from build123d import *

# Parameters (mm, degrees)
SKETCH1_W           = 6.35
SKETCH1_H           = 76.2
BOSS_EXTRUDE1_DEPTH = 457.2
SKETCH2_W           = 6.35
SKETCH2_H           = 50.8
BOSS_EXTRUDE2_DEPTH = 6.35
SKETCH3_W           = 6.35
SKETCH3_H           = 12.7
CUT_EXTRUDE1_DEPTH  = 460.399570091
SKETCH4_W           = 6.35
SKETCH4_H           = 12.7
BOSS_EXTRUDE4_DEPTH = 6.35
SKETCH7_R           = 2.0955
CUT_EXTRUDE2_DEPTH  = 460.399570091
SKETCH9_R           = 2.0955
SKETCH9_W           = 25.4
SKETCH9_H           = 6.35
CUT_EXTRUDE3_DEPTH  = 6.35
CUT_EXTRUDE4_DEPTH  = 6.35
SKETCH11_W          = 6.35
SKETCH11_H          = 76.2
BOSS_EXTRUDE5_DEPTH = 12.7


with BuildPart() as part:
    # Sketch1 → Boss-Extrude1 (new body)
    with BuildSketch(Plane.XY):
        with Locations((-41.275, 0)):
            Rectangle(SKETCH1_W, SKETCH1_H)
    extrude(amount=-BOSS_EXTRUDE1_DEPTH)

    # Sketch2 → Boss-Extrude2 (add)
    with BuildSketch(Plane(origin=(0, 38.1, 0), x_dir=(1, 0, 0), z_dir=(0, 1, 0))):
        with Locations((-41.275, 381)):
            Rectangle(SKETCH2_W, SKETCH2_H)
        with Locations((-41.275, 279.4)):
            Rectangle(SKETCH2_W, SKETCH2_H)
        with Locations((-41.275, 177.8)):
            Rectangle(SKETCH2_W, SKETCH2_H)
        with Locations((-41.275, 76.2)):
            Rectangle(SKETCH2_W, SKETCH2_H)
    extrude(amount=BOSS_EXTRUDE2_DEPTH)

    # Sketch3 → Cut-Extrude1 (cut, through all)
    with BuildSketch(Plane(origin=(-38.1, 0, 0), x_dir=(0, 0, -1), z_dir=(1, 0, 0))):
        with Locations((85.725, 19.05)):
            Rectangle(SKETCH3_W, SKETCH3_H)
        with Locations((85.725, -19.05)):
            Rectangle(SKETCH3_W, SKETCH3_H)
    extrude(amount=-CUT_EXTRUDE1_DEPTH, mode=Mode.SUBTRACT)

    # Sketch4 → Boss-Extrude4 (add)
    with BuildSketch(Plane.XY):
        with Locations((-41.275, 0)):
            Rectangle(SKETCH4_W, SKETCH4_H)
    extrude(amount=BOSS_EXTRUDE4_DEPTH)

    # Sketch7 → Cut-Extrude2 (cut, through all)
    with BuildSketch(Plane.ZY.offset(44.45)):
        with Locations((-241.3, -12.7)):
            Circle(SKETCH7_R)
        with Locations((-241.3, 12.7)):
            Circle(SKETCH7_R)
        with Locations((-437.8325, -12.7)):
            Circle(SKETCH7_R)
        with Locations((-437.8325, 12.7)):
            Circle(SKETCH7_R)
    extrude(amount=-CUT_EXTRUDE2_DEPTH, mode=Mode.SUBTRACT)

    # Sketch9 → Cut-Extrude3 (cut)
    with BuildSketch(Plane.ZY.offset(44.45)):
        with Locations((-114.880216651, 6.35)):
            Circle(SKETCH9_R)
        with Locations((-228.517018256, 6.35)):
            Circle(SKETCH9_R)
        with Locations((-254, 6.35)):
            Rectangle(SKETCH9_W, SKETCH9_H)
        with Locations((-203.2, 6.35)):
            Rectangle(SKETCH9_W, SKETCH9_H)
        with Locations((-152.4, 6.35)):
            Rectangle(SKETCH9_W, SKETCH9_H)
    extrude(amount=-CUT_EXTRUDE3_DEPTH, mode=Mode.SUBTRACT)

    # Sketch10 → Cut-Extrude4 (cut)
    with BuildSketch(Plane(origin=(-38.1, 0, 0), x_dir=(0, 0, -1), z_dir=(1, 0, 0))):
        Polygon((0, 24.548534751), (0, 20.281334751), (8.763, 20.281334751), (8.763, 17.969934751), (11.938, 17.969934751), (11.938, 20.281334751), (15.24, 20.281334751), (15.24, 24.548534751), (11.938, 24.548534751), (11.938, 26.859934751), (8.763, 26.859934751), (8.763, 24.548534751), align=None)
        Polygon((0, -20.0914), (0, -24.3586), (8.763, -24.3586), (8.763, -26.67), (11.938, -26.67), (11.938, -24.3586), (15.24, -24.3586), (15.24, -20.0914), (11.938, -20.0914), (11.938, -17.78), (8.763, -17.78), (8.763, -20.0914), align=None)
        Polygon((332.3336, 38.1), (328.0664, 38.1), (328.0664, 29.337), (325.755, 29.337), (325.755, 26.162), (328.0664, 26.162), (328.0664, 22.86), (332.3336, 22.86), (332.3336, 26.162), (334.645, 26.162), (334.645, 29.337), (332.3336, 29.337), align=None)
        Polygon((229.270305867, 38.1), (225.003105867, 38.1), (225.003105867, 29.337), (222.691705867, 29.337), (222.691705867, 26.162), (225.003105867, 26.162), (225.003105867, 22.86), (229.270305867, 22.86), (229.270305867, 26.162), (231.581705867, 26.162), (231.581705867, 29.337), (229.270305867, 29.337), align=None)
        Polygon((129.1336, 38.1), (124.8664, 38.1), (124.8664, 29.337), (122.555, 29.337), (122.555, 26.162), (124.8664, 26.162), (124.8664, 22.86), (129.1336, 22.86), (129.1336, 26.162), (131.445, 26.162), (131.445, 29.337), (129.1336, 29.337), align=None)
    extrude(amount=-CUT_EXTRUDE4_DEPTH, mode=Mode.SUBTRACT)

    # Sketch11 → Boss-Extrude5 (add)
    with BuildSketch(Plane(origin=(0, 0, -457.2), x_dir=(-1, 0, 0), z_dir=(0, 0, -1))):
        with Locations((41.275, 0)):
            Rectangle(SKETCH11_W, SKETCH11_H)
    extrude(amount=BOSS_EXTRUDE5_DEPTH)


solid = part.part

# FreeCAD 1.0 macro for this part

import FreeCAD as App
import Part
import Sketcher
from FreeCAD import Vector
Q = App.Units.Quantity

doc = App.newDocument("Part")
params = doc.addObject("Spreadsheet::Sheet", "Params")
for row, (alias, value) in enumerate([
    ("sketch1_height", "3 in"),
    ("sketch1_width", "0.25 in"),
    ("pad1_length", "18 in"),
    ("sketch2_height", "2 in"),
    ("sketch2_width", "0.25 in"),
    ("pad2_length", "0.25 in"),
    ("sketch3_width", "0.5 in"),
    ("sketch3_height", "0.25 in"),
    ("sketch4_height", "0.5 in"),
    ("sketch4_width", "0.25 in"),
    ("pad3_length", "0.25 in"),
    ("sketch5_diameter", "0.165 in"),
    ("sketch6_height", "1 in"),
    ("sketch6_diameter", "0.165 in"),
    ("sketch6_width", "0.25 in"),
    ("pocket3_length", "0.25 in"),
    ("sketch7_width", "0.13 in"),
    ("sketch7_width2", "0.168 in"),
    ("sketch7_width3", "0.091 in"),
    ("sketch7_width4", "0.345 in"),
    ("pocket4_length", "0.25 in"),
    ("sketch8_height", "3 in"),
    ("sketch8_width", "0.25 in"),
    ("pad4_length", "0.5 in"),
], start=1):
    params.set(f"A{row}", alias)
    params.set(f"B{row}", "=" + value)
    params.setAlias(f"B{row}", alias)

body = doc.addObject("PartDesign::Body", "Body")

sketch1 = doc.addObject("Sketcher::SketchObject", "Sketch")
body.addObject(sketch1)
sketch1.AttachmentSupport = (doc.XY_Plane, [""])
sketch1.MapMode = "FlatFace"
sketch1.addGeometry([
    Part.LineSegment(Vector(-44, 38, 0), Vector(-44, -38, 0)),
    Part.LineSegment(Vector(-44, -38, 0), Vector(-38, -38, 0)),
    Part.LineSegment(Vector(-38, -38, 0), Vector(-38, 38, 0)),
    Part.LineSegment(Vector(-38, 38, 0), Vector(-44, 38, 0)),
], False)
sketch1.addConstraint([
    Sketcher.Constraint("Coincident", 0, 2, 1, 1),
    Sketcher.Constraint("Coincident", 1, 2, 2, 1),
    Sketcher.Constraint("Coincident", 2, 2, 3, 1),
    Sketcher.Constraint("Coincident", 3, 2, 0, 1),
    Sketcher.Constraint("Vertical", 0),
    Sketcher.Constraint("Horizontal", 1),
    Sketcher.Constraint("Vertical", 2),
    Sketcher.Constraint("Horizontal", 3),
    Sketcher.Constraint("DistanceY", 0, 2, 0, 1, Q("3 in")),
    Sketcher.Constraint("DistanceX", 1, 1, 1, 2, Q("0.25 in")),
    Sketcher.Constraint("DistanceY", 0, 2, -1, 1, Q("1.5 in")),
    Sketcher.Constraint("DistanceX", 1, 2, -1, 1, Q("1.5 in")),
])
sketch1.setExpression("Constraints[8]", "Params.sketch1_height")
sketch1.setExpression("Constraints[9]", "Params.sketch1_width")
pad1 = doc.addObject("PartDesign::Pad", "Pad")
body.addObject(pad1)
pad1.Profile = sketch1
pad1.setExpression("Length", "Params.pad1_length")
pad1.Reversed = True

sketch2 = doc.addObject("Sketcher::SketchObject", "Sketch001")
body.addObject(sketch2)
sketch2.AttachmentSupport = (doc.XZ_Plane, [""])
sketch2.MapMode = "FlatFace"
sketch2.AttachmentOffset = App.Placement(Vector(0, 0, -1.5 * 25.4), App.Rotation())
sketch2.addGeometry([
    Part.LineSegment(Vector(-44, -406, 0), Vector(-44, -356, 0)),
    Part.LineSegment(Vector(-44, -356, 0), Vector(-38, -356, 0)),
    Part.LineSegment(Vector(-38, -356, 0), Vector(-38, -406, 0)),
    Part.LineSegment(Vector(-38, -406, 0), Vector(-44, -406, 0)),
    Part.LineSegment(Vector(-44, -305, 0), Vector(-44, -254, 0)),
    Part.LineSegment(Vector(-44, -254, 0), Vector(-38, -254, 0)),
    Part.LineSegment(Vector(-38, -254, 0), Vector(-38, -305, 0)),
    Part.LineSegment(Vector(-38, -305, 0), Vector(-44, -305, 0)),
    Part.LineSegment(Vector(-44, -203, 0), Vector(-44, -152, 0)),
    Part.LineSegment(Vector(-44, -152, 0), Vector(-38, -152, 0)),
    Part.LineSegment(Vector(-38, -152, 0), Vector(-38, -203, 0)),
    Part.LineSegment(Vector(-38, -203, 0), Vector(-44, -203, 0)),
    Part.LineSegment(Vector(-44, -102, 0), Vector(-44, -51, 0)),
    Part.LineSegment(Vector(-44, -51, 0), Vector(-38, -51, 0)),
    Part.LineSegment(Vector(-38, -51, 0), Vector(-38, -102, 0)),
    Part.LineSegment(Vector(-38, -102, 0), Vector(-44, -102, 0)),
], False)
sketch2.addConstraint([
    Sketcher.Constraint("Coincident", 0, 2, 1, 1),
    Sketcher.Constraint("Coincident", 1, 2, 2, 1),
    Sketcher.Constraint("Coincident", 2, 2, 3, 1),
    Sketcher.Constraint("Coincident", 3, 2, 0, 1),
    Sketcher.Constraint("Coincident", 4, 2, 5, 1),
    Sketcher.Constraint("Coincident", 5, 2, 6, 1),
    Sketcher.Constraint("Coincident", 6, 2, 7, 1),
    Sketcher.Constraint("Coincident", 7, 2, 4, 1),
    Sketcher.Constraint("Coincident", 8, 2, 9, 1),
    Sketcher.Constraint("Coincident", 9, 2, 10, 1),
    Sketcher.Constraint("Coincident", 10, 2, 11, 1),
    Sketcher.Constraint("Coincident", 11, 2, 8, 1),
    Sketcher.Constraint("Coincident", 12, 2, 13, 1),
    Sketcher.Constraint("Coincident", 13, 2, 14, 1),
    Sketcher.Constraint("Coincident", 14, 2, 15, 1),
    Sketcher.Constraint("Coincident", 15, 2, 12, 1),
    Sketcher.Constraint("Vertical", 0),
    Sketcher.Constraint("Horizontal", 1),
    Sketcher.Constraint("Vertical", 2),
    Sketcher.Constraint("Horizontal", 3),
    Sketcher.Constraint("Vertical", 4),
    Sketcher.Constraint("Horizontal", 5),
    Sketcher.Constraint("Vertical", 6),
    Sketcher.Constraint("Horizontal", 7),
    Sketcher.Constraint("Vertical", 8),
    Sketcher.Constraint("Horizontal", 9),
    Sketcher.Constraint("Vertical", 10),
    Sketcher.Constraint("Horizontal", 11),
    Sketcher.Constraint("Vertical", 12),
    Sketcher.Constraint("Horizontal", 13),
    Sketcher.Constraint("Vertical", 14),
    Sketcher.Constraint("Horizontal", 15),
    Sketcher.Constraint("Vertical", 3, 2, 4, 2),
    Sketcher.Constraint("Vertical", 2, 2, 5, 2),
    Sketcher.Constraint("Vertical", 7, 2, 8, 2),
    Sketcher.Constraint("Vertical", 6, 2, 9, 2),
    Sketcher.Constraint("Vertical", 11, 2, 12, 2),
    Sketcher.Constraint("Vertical", 10, 2, 13, 2),
    Sketcher.Constraint("Equal", 2, 4),
    Sketcher.Constraint("Equal", 6, 8),
    Sketcher.Constraint("Equal", 10, 12),
    Sketcher.Constraint("DistanceY", 0, 1, 0, 2, Q("2 in")),
    Sketcher.Constraint("DistanceY", 0, 2, -1, 1, Q("14 in")),
    Sketcher.Constraint("DistanceY", 4, 2, -1, 1, Q("10 in")),
    Sketcher.Constraint("DistanceY", 8, 2, -1, 1, Q("6 in")),
    Sketcher.Constraint("DistanceY", 12, 2, -1, 1, Q("2 in")),
    Sketcher.Constraint("DistanceX", 1, 1, 1, 2, Q("0.25 in")),
    Sketcher.Constraint("DistanceX", 1, 2, -1, 1, Q("1.5 in")),
])
sketch2.setExpression("Constraints[41]", "Params.sketch2_height")
sketch2.setExpression("Constraints[46]", "Params.sketch2_width")
pad2 = doc.addObject("PartDesign::Pad", "Pad001")
body.addObject(pad2)
pad2.Profile = sketch2
pad2.setExpression("Length", "Params.pad2_length")
pad2.Reversed = True

sketch3 = doc.addObject("Sketcher::SketchObject", "Sketch002")
body.addObject(sketch3)
sketch3.AttachmentSupport = (doc.YZ_Plane, [""])
sketch3.MapMode = "FlatFace"
sketch3.AttachmentOffset = App.Placement(Vector(0, 0, -1.5 * 25.4), App.Rotation())
sketch3.addGeometry([
    Part.LineSegment(Vector(25, -83, 0), Vector(13, -83, 0)),
    Part.LineSegment(Vector(13, -83, 0), Vector(13, -89, 0)),
    Part.LineSegment(Vector(13, -89, 0), Vector(25, -89, 0)),
    Part.LineSegment(Vector(25, -89, 0), Vector(25, -83, 0)),
    Part.LineSegment(Vector(-13, -83, 0), Vector(-25, -83, 0)),
    Part.LineSegment(Vector(-25, -83, 0), Vector(-25, -89, 0)),
    Part.LineSegment(Vector(-25, -89, 0), Vector(-13, -89, 0)),
    Part.LineSegment(Vector(-13, -89, 0), Vector(-13, -83, 0)),
], False)
sketch3.addConstraint([
    Sketcher.Constraint("Coincident", 0, 2, 1, 1),
    Sketcher.Constraint("Coincident", 1, 2, 2, 1),
    Sketcher.Constraint("Coincident", 2, 2, 3, 1),
    Sketcher.Constraint("Coincident", 3, 2, 0, 1),
    Sketcher.Constraint("Coincident", 4, 2, 5, 1),
    Sketcher.Constraint("Coincident", 5, 2, 6, 1),
    Sketcher.Constraint("Coincident", 6, 2, 7, 1),
    Sketcher.Constraint("Coincident", 7, 2, 4, 1),
    Sketcher.Constraint("Horizontal", 0),
    Sketcher.Constraint("Vertical", 1),
    Sketcher.Constraint("Horizontal", 2),
    Sketcher.Constraint("Vertical", 3),
    Sketcher.Constraint("Horizontal", 4),
    Sketcher.Constraint("Vertical", 5),
    Sketcher.Constraint("Horizontal", 6),
    Sketcher.Constraint("Vertical", 7),
    Sketcher.Constraint("Symmetric", 3, 2, 4, 2, -2),
    Sketcher.Constraint("Symmetric", 1, 2, 6, 2, -2),
    Sketcher.Constraint("DistanceX", 0, 2, 0, 1, Q("0.5 in")),
    Sketcher.Constraint("DistanceX", -1, 1, 2, 2, Q("1 in")),
    Sketcher.Constraint("DistanceY", 1, 2, 1, 1, Q("0.25 in")),
    Sketcher.Constraint("DistanceY", 1, 2, -1, 1, Q("3.5 in")),
])
sketch3.setExpression("Constraints[18]", "Params.sketch3_width")
sketch3.setExpression("Constraints[20]", "Params.sketch3_height")
pocket1 = doc.addObject("PartDesign::Pocket", "Pocket")
body.addObject(pocket1)
pocket1.Profile = sketch3
pocket1.Type = "ThroughAll"

sketch4 = doc.addObject("Sketcher::SketchObject", "Sketch003")
body.addObject(sketch4)
sketch4.AttachmentSupport = (doc.XY_Plane, [""])
sketch4.MapMode = "FlatFace"
sketch4.addGeometry([
    Part.LineSegment(Vector(-44, 6, 0), Vector(-44, -6, 0)),
    Part.LineSegment(Vector(-44, -6, 0), Vector(-38, -6, 0)),
    Part.LineSegment(Vector(-38, -6, 0), Vector(-38, 6, 0)),
    Part.LineSegment(Vector(-38, 6, 0), Vector(-44, 6, 0)),
], False)
sketch4.addConstraint([
    Sketcher.Constraint("Coincident", 0, 2, 1, 1),
    Sketcher.Constraint("Coincident", 1, 2, 2, 1),
    Sketcher.Constraint("Coincident", 2, 2, 3, 1),
    Sketcher.Constraint("Coincident", 3, 2, 0, 1),
    Sketcher.Constraint("Vertical", 0),
    Sketcher.Constraint("Horizontal", 1),
    Sketcher.Constraint("Vertical", 2),
    Sketcher.Constraint("Horizontal", 3),
    Sketcher.Constraint("DistanceY", 0, 2, 0, 1, Q("0.5 in")),
    Sketcher.Constraint("DistanceX", 1, 1, 1, 2, Q("0.25 in")),
    Sketcher.Constraint("DistanceX", 1, 2, -1, 1, Q("1.5 in")),
    Sketcher.Constraint("DistanceY", 0, 2, -1, 1, Q("0.25 in")),
])
sketch4.setExpression("Constraints[8]", "Params.sketch4_height")
sketch4.setExpression("Constraints[9]", "Params.sketch4_width")
pad3 = doc.addObject("PartDesign::Pad", "Pad002")
body.addObject(pad3)
pad3.Profile = sketch4
pad3.setExpression("Length", "Params.pad3_length")

sketch5 = doc.addObject("Sketcher::SketchObject", "Sketch004")
body.addObject(sketch5)
sketch5.AttachmentSupport = (doc.YZ_Plane, [""])
sketch5.MapMode = "FlatFace"
sketch5.AttachmentOffset = App.Placement(Vector(0, 0, -1.75 * 25.4), App.Rotation())
sketch5.addGeometry([
    Part.Circle(Vector(-12.7, -241.3, 0), Vector(0, 0, 1), 2.1),
    Part.Circle(Vector(12.7, -241.3, 0), Vector(0, 0, 1), 2.1),
    Part.Circle(Vector(-12.7, -437.8, 0), Vector(0, 0, 1), 2.1),
    Part.Circle(Vector(12.7, -437.8, 0), Vector(0, 0, 1), 2.1),
], False)
sketch5.addConstraint([
    Sketcher.Constraint("Equal", 0, 1),
    Sketcher.Constraint("Equal", 1, 2),
    Sketcher.Constraint("Equal", 2, 3),
    Sketcher.Constraint("Symmetric", 0, 3, 1, 3, -2),
    Sketcher.Constraint("Symmetric", 2, 3, 3, 3, -2),
    Sketcher.Constraint("Vertical", 0, 3, 2, 3),
    Sketcher.Constraint("Diameter", 0, Q("0.165 in")),
    Sketcher.Constraint("DistanceX", 0, 3, 1, 3, Q("1 in")),
    Sketcher.Constraint("DistanceY", 0, 3, -1, 1, Q("9.5 in")),
    Sketcher.Constraint("DistanceY", 2, 3, -1, 1, Q("17.2375 in")),
])
sketch5.setExpression("Constraints[6]", "Params.sketch5_diameter")
pocket2 = doc.addObject("PartDesign::Pocket", "Pocket001")
body.addObject(pocket2)
pocket2.Profile = sketch5
pocket2.Type = "ThroughAll"
pocket2.Reversed = True

sketch6 = doc.addObject("Sketcher::SketchObject", "Sketch005")
body.addObject(sketch6)
sketch6.AttachmentSupport = (doc.YZ_Plane, [""])
sketch6.MapMode = "FlatFace"
sketch6.AttachmentOffset = App.Placement(Vector(0, 0, -1.75 * 25.4), App.Rotation())
sketch6.addGeometry([
    Part.Circle(Vector(6.3, -114.9, 0), Vector(0, 0, 1), 2.1),
    Part.Circle(Vector(6.3, -228.5, 0), Vector(0, 0, 1), 2.1),
    Part.LineSegment(Vector(9.5, -266.7, 0), Vector(3.2, -266.7, 0)),
    Part.LineSegment(Vector(3.2, -266.7, 0), Vector(3.2, -241.3, 0)),
    Part.LineSegment(Vector(3.2, -241.3, 0), Vector(9.5, -241.3, 0)),
    Part.LineSegment(Vector(9.5, -241.3, 0), Vector(9.5, -266.7, 0)),
    Part.LineSegment(Vector(9.5, -215.9, 0), Vector(3.2, -215.9, 0)),
    Part.LineSegment(Vector(3.2, -215.9, 0), Vector(3.2, -190.5, 0)),
    Part.LineSegment(Vector(3.2, -190.5, 0), Vector(9.5, -190.5, 0)),
    Part.LineSegment(Vector(9.5, -190.5, 0), Vector(9.5, -215.9, 0)),
    Part.LineSegment(Vector(9.5, -165.1, 0), Vector(3.2, -165.1, 0)),
    Part.LineSegment(Vector(3.2, -165.1, 0), Vector(3.2, -139.7, 0)),
    Part.LineSegment(Vector(3.2, -139.7, 0), Vector(9.5, -139.7, 0)),
    Part.LineSegment(Vector(9.5, -139.7, 0), Vector(9.5, -165.1, 0)),
], False)
sketch6.addConstraint([
    Sketcher.Constraint("Coincident", 2, 2, 3, 1),
    Sketcher.Constraint("Coincident", 3, 2, 4, 1),
    Sketcher.Constraint("Coincident", 4, 2, 5, 1),
    Sketcher.Constraint("Coincident", 5, 2, 2, 1),
    Sketcher.Constraint("Coincident", 6, 2, 7, 1),
    Sketcher.Constraint("Coincident", 7, 2, 8, 1),
    Sketcher.Constraint("Coincident", 8, 2, 9, 1),
    Sketcher.Constraint("Coincident", 9, 2, 6, 1),
    Sketcher.Constraint("Coincident", 10, 2, 11, 1),
    Sketcher.Constraint("Coincident", 11, 2, 12, 1),
    Sketcher.Constraint("Coincident", 12, 2, 13, 1),
    Sketcher.Constraint("Coincident", 13, 2, 10, 1),
    Sketcher.Constraint("Horizontal", 2),
    Sketcher.Constraint("Vertical", 3),
    Sketcher.Constraint("Horizontal", 4),
    Sketcher.Constraint("Vertical", 5),
    Sketcher.Constraint("Horizontal", 6),
    Sketcher.Constraint("Vertical", 7),
    Sketcher.Constraint("Horizontal", 8),
    Sketcher.Constraint("Vertical", 9),
    Sketcher.Constraint("Horizontal", 10),
    Sketcher.Constraint("Vertical", 11),
    Sketcher.Constraint("Horizontal", 12),
    Sketcher.Constraint("Vertical", 13),
    Sketcher.Constraint("Equal", 0, 1),
    Sketcher.Constraint("Vertical", 0, 3, 1, 3),
    Sketcher.Constraint("Vertical", 3, 2, 6, 2),
    Sketcher.Constraint("Vertical", 5, 2, 8, 2),
    Sketcher.Constraint("Vertical", 7, 2, 10, 2),
    Sketcher.Constraint("Vertical", 9, 2, 12, 2),
    Sketcher.Constraint("Equal", 5, 7),
    Sketcher.Constraint("Equal", 9, 11),
    Sketcher.Constraint("DistanceY", 3, 1, 3, 2, Q("1 in")),
    Sketcher.Constraint("Diameter", 0, Q("0.165 in")),
    Sketcher.Constraint("DistanceY", 3, 2, 6, 2, Q("1 in")),
    Sketcher.Constraint("DistanceY", 7, 2, 10, 2, Q("1 in")),
    Sketcher.Constraint("DistanceX", 2, 2, 2, 1, Q("0.25 in")),
    Sketcher.Constraint("DistanceY", 2, 2, -1, 1, Q("10.5 in")),
    Sketcher.Constraint("DistanceX", -1, 1, 0, 3, Q("0.25 in")),
    Sketcher.Constraint("DistanceX", -1, 1, 2, 2, Q("0.125 in")),
    Sketcher.Constraint("DistanceY", 1, 3, 0, 3, 113.636802),
    Sketcher.Constraint("DistanceY", 1, 3, -1, 1, 228.517018),
])
sketch6.setExpression("Constraints[32]", "Params.sketch6_height")
sketch6.setExpression("Constraints[33]", "Params.sketch6_diameter")
sketch6.setExpression("Constraints[36]", "Params.sketch6_width")
pocket3 = doc.addObject("PartDesign::Pocket", "Pocket002")
body.addObject(pocket3)
pocket3.Profile = sketch6
pocket3.setExpression("Length", "Params.pocket3_length")
pocket3.Reversed = True

sketch7 = doc.addObject("Sketcher::SketchObject", "Sketch006")
body.addObject(sketch7)
sketch7.AttachmentSupport = (doc.YZ_Plane, [""])
sketch7.MapMode = "FlatFace"
sketch7.AttachmentOffset = App.Placement(Vector(0, 0, -1.5 * 25.4), App.Rotation())
sketch7.addGeometry([
    Part.LineSegment(Vector(24.5, 0, 0), Vector(20.3, 0, 0)),
    Part.LineSegment(Vector(20.3, 0, 0), Vector(20.3, -8.8, 0)),
    Part.LineSegment(Vector(20.3, -8.8, 0), Vector(18, -8.8, 0)),
    Part.LineSegment(Vector(18, -8.8, 0), Vector(18, -11.9, 0)),
    Part.LineSegment(Vector(18, -11.9, 0), Vector(20.3, -11.9, 0)),
    Part.LineSegment(Vector(20.3, -11.9, 0), Vector(20.3, -15.2, 0)),
    Part.LineSegment(Vector(20.3, -15.2, 0), Vector(24.5, -15.2, 0)),
    Part.LineSegment(Vector(24.5, -15.2, 0), Vector(24.5, -11.9, 0)),
    Part.LineSegment(Vector(24.5, -11.9, 0), Vector(26.9, -11.9, 0)),
    Part.LineSegment(Vector(26.9, -11.9, 0), Vector(26.9, -8.8, 0)),
    Part.LineSegment(Vector(26.9, -8.8, 0), Vector(24.5, -8.8, 0)),
    Part.LineSegment(Vector(24.5, -8.8, 0), Vector(24.5, 0, 0)),
    Part.LineSegment(Vector(-20.1, 0, 0), Vector(-24.4, 0, 0)),
    Part.LineSegment(Vector(-24.4, 0, 0), Vector(-24.4, -8.8, 0)),
    Part.LineSegment(Vector(-24.4, -8.8, 0), Vector(-26.7, -8.8, 0)),
    Part.LineSegment(Vector(-26.7, -8.8, 0), Vector(-26.7, -11.9, 0)),
    Part.LineSegment(Vector(-26.7, -11.9, 0), Vector(-24.4, -11.9, 0)),
    Part.LineSegment(Vector(-24.4, -11.9, 0), Vector(-24.4, -15.2, 0)),
    Part.LineSegment(Vector(-24.4, -15.2, 0), Vector(-20.1, -15.2, 0)),
    Part.LineSegment(Vector(-20.1, -15.2, 0), Vector(-20.1, -11.9, 0)),
    Part.LineSegment(Vector(-20.1, -11.9, 0), Vector(-17.8, -11.9, 0)),
    Part.LineSegment(Vector(-17.8, -11.9, 0), Vector(-17.8, -8.8, 0)),
    Part.LineSegment(Vector(-17.8, -8.8, 0), Vector(-20.1, -8.8, 0)),
    Part.LineSegment(Vector(-20.1, -8.8, 0), Vector(-20.1, 0, 0)),
    Part.LineSegment(Vector(38.1, -332.3, 0), Vector(38.1, -328.1, 0)),
    Part.LineSegment(Vector(38.1, -328.1, 0), Vector(29.3, -328.1, 0)),
    Part.LineSegment(Vector(29.3, -328.1, 0), Vector(29.3, -325.8, 0)),
    Part.LineSegment(Vector(29.3, -325.8, 0), Vector(26.2, -325.8, 0)),
    Part.LineSegment(Vector(26.2, -325.8, 0), Vector(26.2, -328.1, 0)),
    Part.LineSegment(Vector(26.2, -328.1, 0), Vector(22.9, -328.1, 0)),
    Part.LineSegment(Vector(22.9, -328.1, 0), Vector(22.9, -332.3, 0)),
    Part.LineSegment(Vector(22.9, -332.3, 0), Vector(26.2, -332.3, 0)),
    Part.LineSegment(Vector(26.2, -332.3, 0), Vector(26.2, -334.6, 0)),
    Part.LineSegment(Vector(26.2, -334.6, 0), Vector(29.3, -334.6, 0)),
    Part.LineSegment(Vector(29.3, -334.6, 0), Vector(29.3, -332.3, 0)),
    Part.LineSegment(Vector(29.3, -332.3, 0), Vector(38.1, -332.3, 0)),
    Part.LineSegment(Vector(38.1, -229.3, 0), Vector(38.1, -225, 0)),
    Part.LineSegment(Vector(38.1, -225, 0), Vector(29.3, -225, 0)),
    Part.LineSegment(Vector(29.3, -225, 0), Vector(29.3, -222.7, 0)),
    Part.LineSegment(Vector(29.3, -222.7, 0), Vector(26.2, -222.7, 0)),
    Part.LineSegment(Vector(26.2, -222.7, 0), Vector(26.2, -225, 0)),
    Part.LineSegment(Vector(26.2, -225, 0), Vector(22.9, -225, 0)),
    Part.LineSegment(Vector(22.9, -225, 0), Vector(22.9, -229.3, 0)),
    Part.LineSegment(Vector(22.9, -229.3, 0), Vector(26.2, -229.3, 0)),
    Part.LineSegment(Vector(26.2, -229.3, 0), Vector(26.2, -231.6, 0)),
    Part.LineSegment(Vector(26.2, -231.6, 0), Vector(29.3, -231.6, 0)),
    Part.LineSegment(Vector(29.3, -231.6, 0), Vector(29.3, -229.3, 0)),
    Part.LineSegment(Vector(29.3, -229.3, 0), Vector(38.1, -229.3, 0)),
    Part.LineSegment(Vector(38.1, -129.1, 0), Vector(38.1, -124.9, 0)),
    Part.LineSegment(Vector(38.1, -124.9, 0), Vector(29.3, -124.9, 0)),
    Part.LineSegment(Vector(29.3, -124.9, 0), Vector(29.3, -122.6, 0)),
    Part.LineSegment(Vector(29.3, -122.6, 0), Vector(26.2, -122.6, 0)),
    Part.LineSegment(Vector(26.2, -122.6, 0), Vector(26.2, -124.9, 0)),
    Part.LineSegment(Vector(26.2, -124.9, 0), Vector(22.9, -124.9, 0)),
    Part.LineSegment(Vector(22.9, -124.9, 0), Vector(22.9, -129.1, 0)),
    Part.LineSegment(Vector(22.9, -129.1, 0), Vector(26.2, -129.1, 0)),
    Part.LineSegment(Vector(26.2, -129.1, 0), Vector(26.2, -131.4, 0)),
    Part.LineSegment(Vector(26.2, -131.4, 0), Vector(29.3, -131.4, 0)),
    Part.LineSegment(Vector(29.3, -131.4, 0), Vector(29.3, -129.1, 0)),
    Part.LineSegment(Vector(29.3, -129.1, 0), Vector(38.1, -129.1, 0)),
], False)
sketch7.addConstraint([
    Sketcher.Constraint("Coincident", 0, 2, 1, 1),
    Sketcher.Constraint("Coincident", 1, 2, 2, 1),
    Sketcher.Constraint("Coincident", 2, 2, 3, 1),
    Sketcher.Constraint("Coincident", 3, 2, 4, 1),
    Sketcher.Constraint("Coincident", 4, 2, 5, 1),
    Sketcher.Constraint("Coincident", 5, 2, 6, 1),
    Sketcher.Constraint("Coincident", 6, 2, 7, 1),
    Sketcher.Constraint("Coincident", 7, 2, 8, 1),
    Sketcher.Constraint("Coincident", 8, 2, 9, 1),
    Sketcher.Constraint("Coincident", 9, 2, 10, 1),
    Sketcher.Constraint("Coincident", 10, 2, 11, 1),
    Sketcher.Constraint("Coincident", 11, 2, 0, 1),
    Sketcher.Constraint("Coincident", 12, 2, 13, 1),
    Sketcher.Constraint("Coincident", 13, 2, 14, 1),
    Sketcher.Constraint("Coincident", 14, 2, 15, 1),
    Sketcher.Constraint("Coincident", 15, 2, 16, 1),
    Sketcher.Constraint("Coincident", 16, 2, 17, 1),
    Sketcher.Constraint("Coincident", 17, 2, 18, 1),
    Sketcher.Constraint("Coincident", 18, 2, 19, 1),
    Sketcher.Constraint("Coincident", 19, 2, 20, 1),
    Sketcher.Constraint("Coincident", 20, 2, 21, 1),
    Sketcher.Constraint("Coincident", 21, 2, 22, 1),
    Sketcher.Constraint("Coincident", 22, 2, 23, 1),
    Sketcher.Constraint("Coincident", 23, 2, 12, 1),
    Sketcher.Constraint("Coincident", 24, 2, 25, 1),
    Sketcher.Constraint("Coincident", 25, 2, 26, 1),
    Sketcher.Constraint("Coincident", 26, 2, 27, 1),
    Sketcher.Constraint("Coincident", 27, 2, 28, 1),
    Sketcher.Constraint("Coincident", 28, 2, 29, 1),
    Sketcher.Constraint("Coincident", 29, 2, 30, 1),
    Sketcher.Constraint("Coincident", 30, 2, 31, 1),
    Sketcher.Constraint("Coincident", 31, 2, 32, 1),
    Sketcher.Constraint("Coincident", 32, 2, 33, 1),
    Sketcher.Constraint("Coincident", 33, 2, 34, 1),
    Sketcher.Constraint("Coincident", 34, 2, 35, 1),
    Sketcher.Constraint("Coincident", 35, 2, 24, 1),
    Sketcher.Constraint("Coincident", 36, 2, 37, 1),
    Sketcher.Constraint("Coincident", 37, 2, 38, 1),
    Sketcher.Constraint("Coincident", 38, 2, 39, 1),
    Sketcher.Constraint("Coincident", 39, 2, 40, 1),
    Sketcher.Constraint("Coincident", 40, 2, 41, 1),
    Sketcher.Constraint("Coincident", 41, 2, 42, 1),
    Sketcher.Constraint("Coincident", 42, 2, 43, 1),
    Sketcher.Constraint("Coincident", 43, 2, 44, 1),
    Sketcher.Constraint("Coincident", 44, 2, 45, 1),
    Sketcher.Constraint("Coincident", 45, 2, 46, 1),
    Sketcher.Constraint("Coincident", 46, 2, 47, 1),
    Sketcher.Constraint("Coincident", 47, 2, 36, 1),
    Sketcher.Constraint("Coincident", 48, 2, 49, 1),
    Sketcher.Constraint("Coincident", 49, 2, 50, 1),
    Sketcher.Constraint("Coincident", 50, 2, 51, 1),
    Sketcher.Constraint("Coincident", 51, 2, 52, 1),
    Sketcher.Constraint("Coincident", 52, 2, 53, 1),
    Sketcher.Constraint("Coincident", 53, 2, 54, 1),
    Sketcher.Constraint("Coincident", 54, 2, 55, 1),
    Sketcher.Constraint("Coincident", 55, 2, 56, 1),
    Sketcher.Constraint("Coincident", 56, 2, 57, 1),
    Sketcher.Constraint("Coincident", 57, 2, 58, 1),
    Sketcher.Constraint("Coincident", 58, 2, 59, 1),
    Sketcher.Constraint("Coincident", 59, 2, 48, 1),
    Sketcher.Constraint("Horizontal", 0),
    Sketcher.Constraint("Vertical", 1),
    Sketcher.Constraint("Horizontal", 2),
    Sketcher.Constraint("Vertical", 3),
    Sketcher.Constraint("Horizontal", 4),
    Sketcher.Constraint("Vertical", 5),
    Sketcher.Constraint("Horizontal", 6),
    Sketcher.Constraint("Vertical", 7),
    Sketcher.Constraint("Horizontal", 8),
    Sketcher.Constraint("Vertical", 9),
    Sketcher.Constraint("Horizontal", 10),
    Sketcher.Constraint("Vertical", 11),
    Sketcher.Constraint("Horizontal", 12),
    Sketcher.Constraint("Vertical", 13),
    Sketcher.Constraint("Horizontal", 14),
    Sketcher.Constraint("Vertical", 15),
    Sketcher.Constraint("Horizontal", 16),
    Sketcher.Constraint("Vertical", 17),
    Sketcher.Constraint("Horizontal", 18),
    Sketcher.Constraint("Vertical", 19),
    Sketcher.Constraint("Horizontal", 20),
    Sketcher.Constraint("Vertical", 21),
    Sketcher.Constraint("Horizontal", 22),
    Sketcher.Constraint("Vertical", 23),
    Sketcher.Constraint("Vertical", 24),
    Sketcher.Constraint("Horizontal", 25),
    Sketcher.Constraint("Vertical", 26),
    Sketcher.Constraint("Horizontal", 27),
    Sketcher.Constraint("Vertical", 28),
    Sketcher.Constraint("Horizontal", 29),
    Sketcher.Constraint("Vertical", 30),
    Sketcher.Constraint("Horizontal", 31),
    Sketcher.Constraint("Vertical", 32),
    Sketcher.Constraint("Horizontal", 33),
    Sketcher.Constraint("Vertical", 34),
    Sketcher.Constraint("Horizontal", 35),
    Sketcher.Constraint("Vertical", 36),
    Sketcher.Constraint("Horizontal", 37),
    Sketcher.Constraint("Vertical", 38),
    Sketcher.Constraint("Horizontal", 39),
    Sketcher.Constraint("Vertical", 40),
    Sketcher.Constraint("Horizontal", 41),
    Sketcher.Constraint("Vertical", 42),
    Sketcher.Constraint("Horizontal", 43),
    Sketcher.Constraint("Vertical", 44),
    Sketcher.Constraint("Horizontal", 45),
    Sketcher.Constraint("Vertical", 46),
    Sketcher.Constraint("Horizontal", 47),
    Sketcher.Constraint("Vertical", 48),
    Sketcher.Constraint("Horizontal", 49),
    Sketcher.Constraint("Vertical", 50),
    Sketcher.Constraint("Horizontal", 51),
    Sketcher.Constraint("Vertical", 52),
    Sketcher.Constraint("Horizontal", 53),
    Sketcher.Constraint("Vertical", 54),
    Sketcher.Constraint("Horizontal", 55),
    Sketcher.Constraint("Vertical", 56),
    Sketcher.Constraint("Horizontal", 57),
    Sketcher.Constraint("Vertical", 58),
    Sketcher.Constraint("Horizontal", 59),
    Sketcher.Constraint("PointOnObject", 0, 2, -1),
    Sketcher.Constraint("PointOnObject", 12, 2, -1),
    Sketcher.Constraint("Horizontal", 4, 2, 7, 2),
    Sketcher.Constraint("Horizontal", 2, 2, 9, 2),
    Sketcher.Constraint("Horizontal", 10, 2, 13, 2),
    Sketcher.Constraint("Horizontal", 8, 2, 15, 2),
    Sketcher.Constraint("Horizontal", 6, 2, 17, 2),
    Sketcher.Constraint("Horizontal", 16, 2, 19, 2),
    Sketcher.Constraint("Horizontal", 14, 2, 21, 2),
    Sketcher.Constraint("Horizontal", 25, 2, 28, 2),
    Sketcher.Constraint("Horizontal", 31, 2, 34, 2),
    Sketcher.Constraint("Horizontal", 37, 2, 40, 2),
    Sketcher.Constraint("Horizontal", 43, 2, 46, 2),
    Sketcher.Constraint("Horizontal", 49, 2, 52, 2),
    Sketcher.Constraint("Horizontal", 55, 2, 58, 2),
    Sketcher.Constraint("Vertical", 1, 2, 4, 2),
    Sketcher.Constraint("Vertical", 7, 2, 10, 2),
    Sketcher.Constraint("Vertical", 13, 2, 16, 2),
    Sketcher.Constraint("Vertical", 19, 2, 22, 2),
    Sketcher.Constraint("Vertical", 28, 2, 31, 2),
    Sketcher.Constraint("Vertical", 26, 2, 33, 2),
    Sketcher.Constraint("Vertical", 35, 2, 36, 2),
    Sketcher.Constraint("Vertical", 34, 2, 37, 2),
    Sketcher.Constraint("Vertical", 32, 2, 39, 2),
    Sketcher.Constraint("Vertical", 30, 2, 41, 2),
    Sketcher.Constraint("Vertical", 40, 2, 43, 2),
    Sketcher.Constraint("Vertical", 38, 2, 45, 2),
    Sketcher.Constraint("Vertical", 47, 2, 48, 2),
    Sketcher.Constraint("Vertical", 46, 2, 49, 2),
    Sketcher.Constraint("Vertical", 44, 2, 51, 2),
    Sketcher.Constraint("Vertical", 42, 2, 53, 2),
    Sketcher.Constraint("Vertical", 52, 2, 55, 2),
    Sketcher.Constraint("Vertical", 50, 2, 57, 2),
    Sketcher.Constraint("Equal", 4, 8),
    Sketcher.Constraint("Equal", 6, 12),
    Sketcher.Constraint("Equal", 10, 14),
    Sketcher.Constraint("Equal", 16, 20),
    Sketcher.Constraint("Equal", 59, 1),
    Sketcher.Constraint("Equal", 57, 3),
    Sketcher.Constraint("Equal", 55, 5),
    Sketcher.Constraint("Equal", 18, 24),
    Sketcher.Constraint("Equal", 22, 26),
    Sketcher.Constraint("Equal", 28, 32),
    Sketcher.Constraint("Equal", 30, 36),
    Sketcher.Constraint("Equal", 34, 38),
    Sketcher.Constraint("Equal", 40, 44),
    Sketcher.Constraint("Equal", 42, 48),
    Sketcher.Constraint("Equal", 46, 50),
    Sketcher.Constraint("Equal", 52, 56),
    Sketcher.Constraint("DistanceX", 29, 2, 29, 1, Q("0.13 in")),
    Sketcher.Constraint("DistanceY", 5, 2, -1, 1, Q("0.6 in")),
    Sketcher.Constraint("DistanceX", 20, 2, -1, 1, Q("0.7 in")),
    Sketcher.Constraint("DistanceX", -1, 1, 24, 2, Q("1.5 in")),
    Sketcher.Constraint("DistanceX", 0, 2, 0, 1, Q("0.168 in")),
    Sketcher.Constraint("DistanceX", 2, 2, 2, 1, Q("0.091 in")),
    Sketcher.Constraint("DistanceX", 25, 2, 25, 1, Q("0.345 in")),
    Sketcher.Constraint("DistanceY", 24, 2, -1, 1, Q("12.916 in")),
    Sketcher.Constraint("DistanceY", 48, 2, -1, 1, Q("4.916 in")),
    Sketcher.Constraint("DistanceX", -1, 1, 0, 2, 20.281335),
    Sketcher.Constraint("DistanceY", 36, 2, -1, 1, 225.003106),
])
sketch7.setExpression("Constraints[169]", "Params.sketch7_width")
sketch7.setExpression("Constraints[173]", "Params.sketch7_width2")
sketch7.setExpression("Constraints[174]", "Params.sketch7_width3")
sketch7.setExpression("Constraints[175]", "Params.sketch7_width4")
pocket4 = doc.addObject("PartDesign::Pocket", "Pocket003")
body.addObject(pocket4)
pocket4.Profile = sketch7
pocket4.setExpression("Length", "Params.pocket4_length")

sketch8 = doc.addObject("Sketcher::SketchObject", "Sketch007")
body.addObject(sketch8)
sketch8.AttachmentSupport = (doc.XY_Plane, [""])
sketch8.MapMode = "FlatFace"
sketch8.AttachmentOffset = App.Placement(Vector(0, 0, -18 * 25.4), App.Rotation())
sketch8.addGeometry([
    Part.LineSegment(Vector(-38, 38, 0), Vector(-38, -38, 0)),
    Part.LineSegment(Vector(-38, -38, 0), Vector(-44, -38, 0)),
    Part.LineSegment(Vector(-44, -38, 0), Vector(-44, 38, 0)),
    Part.LineSegment(Vector(-44, 38, 0), Vector(-38, 38, 0)),
], False)
sketch8.addConstraint([
    Sketcher.Constraint("Coincident", 0, 2, 1, 1),
    Sketcher.Constraint("Coincident", 1, 2, 2, 1),
    Sketcher.Constraint("Coincident", 2, 2, 3, 1),
    Sketcher.Constraint("Coincident", 3, 2, 0, 1),
    Sketcher.Constraint("Vertical", 0),
    Sketcher.Constraint("Horizontal", 1),
    Sketcher.Constraint("Vertical", 2),
    Sketcher.Constraint("Horizontal", 3),
    Sketcher.Constraint("DistanceY", 0, 2, 0, 1, Q("3 in")),
    Sketcher.Constraint("DistanceX", 1, 2, 1, 1, Q("0.25 in")),
    Sketcher.Constraint("DistanceX", 0, 2, -1, 1, Q("1.5 in")),
    Sketcher.Constraint("DistanceY", 0, 2, -1, 1, Q("1.5 in")),
])
sketch8.setExpression("Constraints[8]", "Params.sketch8_height")
sketch8.setExpression("Constraints[9]", "Params.sketch8_width")
pad4 = doc.addObject("PartDesign::Pad", "Pad003")
body.addObject(pad4)
pad4.Profile = sketch8
pad4.setExpression("Length", "Params.pad4_length")
pad4.Reversed = True

doc.recompute()
